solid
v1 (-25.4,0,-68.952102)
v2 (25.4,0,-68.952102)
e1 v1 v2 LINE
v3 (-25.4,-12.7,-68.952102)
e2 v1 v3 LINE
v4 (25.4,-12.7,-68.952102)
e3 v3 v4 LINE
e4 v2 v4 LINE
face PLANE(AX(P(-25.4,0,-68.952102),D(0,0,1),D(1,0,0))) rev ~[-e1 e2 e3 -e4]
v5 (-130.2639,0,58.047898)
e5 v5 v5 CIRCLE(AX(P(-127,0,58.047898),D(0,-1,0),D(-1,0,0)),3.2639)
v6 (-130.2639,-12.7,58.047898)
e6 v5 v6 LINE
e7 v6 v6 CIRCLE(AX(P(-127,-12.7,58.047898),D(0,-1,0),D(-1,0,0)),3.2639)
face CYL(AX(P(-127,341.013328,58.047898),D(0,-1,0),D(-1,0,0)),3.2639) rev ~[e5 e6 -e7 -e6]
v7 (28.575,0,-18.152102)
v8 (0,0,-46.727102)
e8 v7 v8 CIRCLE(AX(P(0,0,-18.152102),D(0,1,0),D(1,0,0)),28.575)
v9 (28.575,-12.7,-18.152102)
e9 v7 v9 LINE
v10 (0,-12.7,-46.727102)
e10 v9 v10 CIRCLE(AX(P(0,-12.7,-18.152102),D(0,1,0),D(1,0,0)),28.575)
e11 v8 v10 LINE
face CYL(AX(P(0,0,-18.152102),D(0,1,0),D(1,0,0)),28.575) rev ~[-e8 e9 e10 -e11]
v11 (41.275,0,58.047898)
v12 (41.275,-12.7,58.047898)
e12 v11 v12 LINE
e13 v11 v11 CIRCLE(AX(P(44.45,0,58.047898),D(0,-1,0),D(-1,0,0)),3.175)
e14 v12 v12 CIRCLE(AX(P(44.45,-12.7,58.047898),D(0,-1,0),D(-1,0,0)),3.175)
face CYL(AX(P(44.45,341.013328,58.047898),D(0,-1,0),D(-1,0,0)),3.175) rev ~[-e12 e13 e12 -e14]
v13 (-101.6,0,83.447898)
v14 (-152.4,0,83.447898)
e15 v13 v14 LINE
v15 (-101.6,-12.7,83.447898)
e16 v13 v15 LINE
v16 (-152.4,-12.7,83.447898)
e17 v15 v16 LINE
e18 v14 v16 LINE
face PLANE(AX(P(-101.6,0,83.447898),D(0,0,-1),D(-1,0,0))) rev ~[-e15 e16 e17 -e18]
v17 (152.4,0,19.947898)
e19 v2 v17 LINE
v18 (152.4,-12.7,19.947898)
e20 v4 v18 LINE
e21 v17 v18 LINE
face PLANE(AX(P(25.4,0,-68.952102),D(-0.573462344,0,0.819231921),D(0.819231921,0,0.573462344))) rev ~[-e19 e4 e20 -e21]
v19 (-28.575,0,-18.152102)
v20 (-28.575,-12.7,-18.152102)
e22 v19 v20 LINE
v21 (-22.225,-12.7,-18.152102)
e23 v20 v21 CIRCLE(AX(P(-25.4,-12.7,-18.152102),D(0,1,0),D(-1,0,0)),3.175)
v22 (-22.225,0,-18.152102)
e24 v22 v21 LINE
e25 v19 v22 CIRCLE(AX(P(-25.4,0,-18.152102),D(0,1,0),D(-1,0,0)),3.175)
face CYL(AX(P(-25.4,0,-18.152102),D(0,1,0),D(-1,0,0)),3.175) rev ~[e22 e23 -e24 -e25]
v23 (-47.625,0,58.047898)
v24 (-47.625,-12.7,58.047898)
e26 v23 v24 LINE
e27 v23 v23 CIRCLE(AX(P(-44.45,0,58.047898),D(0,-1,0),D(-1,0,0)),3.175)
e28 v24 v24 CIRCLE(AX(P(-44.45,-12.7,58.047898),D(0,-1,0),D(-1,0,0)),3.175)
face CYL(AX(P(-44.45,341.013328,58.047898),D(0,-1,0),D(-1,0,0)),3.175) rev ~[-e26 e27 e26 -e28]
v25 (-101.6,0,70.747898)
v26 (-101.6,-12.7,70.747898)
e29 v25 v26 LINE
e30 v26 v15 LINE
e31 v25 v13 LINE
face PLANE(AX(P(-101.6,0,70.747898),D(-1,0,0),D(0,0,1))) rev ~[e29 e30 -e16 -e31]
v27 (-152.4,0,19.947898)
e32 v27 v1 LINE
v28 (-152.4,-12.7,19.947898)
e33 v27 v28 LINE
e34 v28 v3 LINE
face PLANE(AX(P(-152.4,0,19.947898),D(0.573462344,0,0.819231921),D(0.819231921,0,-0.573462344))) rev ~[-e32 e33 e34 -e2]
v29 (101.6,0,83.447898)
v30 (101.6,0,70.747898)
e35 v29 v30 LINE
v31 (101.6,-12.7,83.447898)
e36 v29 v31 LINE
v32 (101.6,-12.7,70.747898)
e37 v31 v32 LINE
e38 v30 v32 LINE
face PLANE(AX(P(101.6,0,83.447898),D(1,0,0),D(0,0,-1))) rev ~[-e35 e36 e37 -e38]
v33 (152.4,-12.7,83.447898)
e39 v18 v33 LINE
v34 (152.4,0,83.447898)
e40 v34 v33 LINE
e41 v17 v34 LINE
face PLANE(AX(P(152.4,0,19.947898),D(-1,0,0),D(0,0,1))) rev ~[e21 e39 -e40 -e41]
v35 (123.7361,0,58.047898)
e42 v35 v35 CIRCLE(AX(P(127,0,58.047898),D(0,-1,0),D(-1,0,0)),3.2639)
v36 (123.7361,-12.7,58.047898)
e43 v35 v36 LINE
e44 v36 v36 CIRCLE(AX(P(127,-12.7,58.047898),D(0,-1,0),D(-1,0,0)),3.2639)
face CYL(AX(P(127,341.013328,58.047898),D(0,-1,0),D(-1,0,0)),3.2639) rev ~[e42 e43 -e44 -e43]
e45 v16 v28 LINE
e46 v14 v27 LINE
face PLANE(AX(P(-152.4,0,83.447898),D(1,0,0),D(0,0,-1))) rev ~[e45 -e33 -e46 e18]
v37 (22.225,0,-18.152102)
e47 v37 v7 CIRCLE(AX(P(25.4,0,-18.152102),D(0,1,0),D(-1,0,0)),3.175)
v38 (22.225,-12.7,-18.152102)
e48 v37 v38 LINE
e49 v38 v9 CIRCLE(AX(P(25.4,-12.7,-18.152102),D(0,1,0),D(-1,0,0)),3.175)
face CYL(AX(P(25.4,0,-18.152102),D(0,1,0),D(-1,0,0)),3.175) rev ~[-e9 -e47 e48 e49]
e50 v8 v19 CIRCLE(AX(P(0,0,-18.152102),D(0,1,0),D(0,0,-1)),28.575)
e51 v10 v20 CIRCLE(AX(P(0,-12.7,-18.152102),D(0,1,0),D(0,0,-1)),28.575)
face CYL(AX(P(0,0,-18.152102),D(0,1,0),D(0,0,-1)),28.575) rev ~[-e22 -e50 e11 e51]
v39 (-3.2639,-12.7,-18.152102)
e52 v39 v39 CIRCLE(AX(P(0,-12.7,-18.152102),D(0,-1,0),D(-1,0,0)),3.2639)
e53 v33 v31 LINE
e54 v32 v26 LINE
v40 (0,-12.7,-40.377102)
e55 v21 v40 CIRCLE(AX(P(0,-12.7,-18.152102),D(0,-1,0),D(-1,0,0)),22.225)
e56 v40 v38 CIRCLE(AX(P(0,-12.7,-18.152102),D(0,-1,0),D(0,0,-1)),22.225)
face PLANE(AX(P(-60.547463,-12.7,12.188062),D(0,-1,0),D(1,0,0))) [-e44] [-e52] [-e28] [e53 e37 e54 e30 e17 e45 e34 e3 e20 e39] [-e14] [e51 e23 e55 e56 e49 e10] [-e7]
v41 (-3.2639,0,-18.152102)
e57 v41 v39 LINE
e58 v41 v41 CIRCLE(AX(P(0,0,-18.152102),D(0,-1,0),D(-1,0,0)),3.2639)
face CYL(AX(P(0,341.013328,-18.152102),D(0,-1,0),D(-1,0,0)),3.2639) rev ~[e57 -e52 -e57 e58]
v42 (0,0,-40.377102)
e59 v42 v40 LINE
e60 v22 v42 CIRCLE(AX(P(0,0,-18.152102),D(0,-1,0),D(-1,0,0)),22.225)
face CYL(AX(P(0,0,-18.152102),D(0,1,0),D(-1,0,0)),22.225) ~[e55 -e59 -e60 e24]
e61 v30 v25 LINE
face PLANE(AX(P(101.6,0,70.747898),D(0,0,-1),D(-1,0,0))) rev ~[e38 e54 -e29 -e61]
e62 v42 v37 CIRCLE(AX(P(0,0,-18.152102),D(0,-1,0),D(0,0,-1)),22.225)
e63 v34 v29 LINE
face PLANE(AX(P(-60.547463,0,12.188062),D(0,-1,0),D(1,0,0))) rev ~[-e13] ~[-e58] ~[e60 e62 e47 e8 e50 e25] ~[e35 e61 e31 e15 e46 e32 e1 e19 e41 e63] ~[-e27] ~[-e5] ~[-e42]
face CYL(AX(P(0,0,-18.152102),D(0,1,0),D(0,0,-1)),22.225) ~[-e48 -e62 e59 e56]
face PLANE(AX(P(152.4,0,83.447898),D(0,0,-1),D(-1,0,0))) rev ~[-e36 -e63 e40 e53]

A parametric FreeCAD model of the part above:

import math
import FreeCAD as App
import Part
import Sketcher
Q = App.Units.Quantity


def add_polygon(sketch, points):
    """Adds a closed chain of lines whose ends are joined by coincident constraints."""
    first, n = sketch.GeometryCount, len(points)
    for a, b in zip(points, points[1:] + points[:1]):
        sketch.addGeometry(Part.LineSegment(App.Vector(*a, 0), App.Vector(*b, 0)), False)
    for i in range(n):
        sketch.addConstraint(Sketcher.Constraint("Coincident", first + i, 2, first + (i + 1) % n, 1))

doc = App.newDocument("Part")
body = doc.addObject("PartDesign::Body", "Body")

sketch1 = body.newObject("Sketcher::SketchObject", "Sketch")
sketch1.AttachmentSupport = (doc.getObject("XZ_Plane"), [""])
sketch1.MapMode = "FlatFace"
add_polygon(sketch1, [(-101.6, 70.7), (-101.6, 83.4), (-152.4, 83.4), (-152.4, 19.9), (-25.4, -69), (25.4, -69), (152.4, 19.9), (152.4, 83.4), (101.6, 83.4), (101.6, 70.7)])
sketch1.addGeometry(Part.ArcOfCircle(Part.Circle(App.Vector(0, -18.2, 0), App.Vector(0, 0, 1), 28.6), math.radians(180), math.radians(270)), False)
sketch1.addGeometry(Part.ArcOfCircle(Part.Circle(App.Vector(-25.4, -18.2, 0), App.Vector(0, 0, 1), 3.2), math.radians(0), math.radians(180)), False)
sketch1.addGeometry(Part.ArcOfCircle(Part.Circle(App.Vector(0, -18.2, 0), App.Vector(0, 0, 1), 22.2), math.radians(180), math.radians(270)), False)
sketch1.addGeometry(Part.ArcOfCircle(Part.Circle(App.Vector(0, -18.2, 0), App.Vector(0, 0, 1), 22.2), math.radians(-90), math.radians(0)), False)
sketch1.addGeometry(Part.ArcOfCircle(Part.Circle(App.Vector(25.4, -18.2, 0), App.Vector(0, 0, 1), 3.2), math.radians(0), math.radians(180)), False)
sketch1.addGeometry(Part.ArcOfCircle(Part.Circle(App.Vector(0, -18.2, 0), App.Vector(0, 0, 1), 28.6), math.radians(-90), math.radians(0)), False)
sketch1.addConstraint([
    Sketcher.Constraint("Tangent", 10, 1, 11, 2),
    Sketcher.Constraint("Tangent", 11, 1, 12, 1),
    Sketcher.Constraint("Tangent", 12, 2, 13, 1),
    Sketcher.Constraint("Tangent", 13, 2, 14, 2),
    Sketcher.Constraint("Tangent", 14, 1, 15, 2),
    Sketcher.Constraint("Tangent", 15, 1, 10, 2),
    Sketcher.Constraint("Vertical", 0),
    Sketcher.Constraint("Horizontal", 1),
    Sketcher.Constraint("Vertical", 2),
    Sketcher.Constraint("Horizontal", 4),
    Sketcher.Constraint("Vertical", 6),
    Sketcher.Constraint("Horizontal", 7),
    Sketcher.Constraint("Vertical", 8),
    Sketcher.Constraint("Horizontal", 9),
    Sketcher.Constraint("Coincident", 12, 3, 10, 3),
    Sketcher.Constraint("Equal", 12, 13),
    Sketcher.Constraint("Equal", 11, 14),
    Sketcher.Constraint("Symmetric", 11, 3, 14, 3, -2),
    Sketcher.Constraint("Symmetric", 2, 2, 5, 2, -2),
    Sketcher.Constraint("Symmetric", 0, 2, 7, 2, -2),
    Sketcher.Constraint("PointOnObject", 12, 2, -2),
    Sketcher.Constraint("PointOnObject", 15, 1, -2),
    Sketcher.Constraint("Horizontal", 10, 3, 11, 3),
    Sketcher.Constraint("Vertical", 11, 3, 3, 2),
    Sketcher.Constraint("Vertical", 14, 3, 4, 2),
    Sketcher.Constraint("Equal", 1, 4),
    Sketcher.Constraint("DistanceX", 1, 2, 1, 1, Q("2 in")),
    Sketcher.Constraint("DistanceX", 9, 2, 9, 1, Q("8 in")),
    Sketcher.Constraint("DistanceY", 0, 1, 0, 2, Q("0.5 in")),
    Sketcher.Constraint("DistanceY", 2, 2, 2, 1, Q("2.5 in")),
    Sketcher.Constraint("Radius", 10, Q("1.125 in")),
    Sketcher.Constraint("DistanceY", 11, 3, 0, 2, Q("4 in")),
    Sketcher.Constraint("DistanceY", 3, 2, 11, 3, Q("2 in")),
    Sketcher.Constraint("DistanceY", 10, 3, -1, 1, 18.152102),
])
pad1 = body.newObject("PartDesign::Pad", "Pad")
pad1.Profile = sketch1
pad1.Length = Q("0.5 in")

sketch2 = body.newObject("Sketcher::SketchObject", "Sketch001")
sketch2.AttachmentSupport = (doc.getObject("XZ_Plane"), [""])
sketch2.MapMode = "FlatFace"
sketch2.addGeometry([
    Part.Circle(App.Vector(44.5, 58, 0), App.Vector(0, 0, 1), 3.2),
    Part.Circle(App.Vector(-44.5, 58, 0), App.Vector(0, 0, 1), 3.2),
], False)
sketch2.addConstraint([
    Sketcher.Constraint("Equal", 0, 1),
    Sketcher.Constraint("Symmetric", 0, 3, 1, 3, -2),
    Sketcher.Constraint("Diameter", 0, Q("0.25 in")),
    Sketcher.Constraint("DistanceX", 1, 3, 0, 3, Q("3.5 in")),
    Sketcher.Constraint("DistanceY", -1, 1, 0, 3, 58.047898),
])
doc.recompute()
hole = body.newObject("PartDesign::Hole", "Hole")
hole.Profile = sketch2
hole.ThreadType = "None"
hole.Diameter = Q("0.25 in")
hole.DepthType = "ThroughAll"
hole.Reversed = True

sketch3 = body.newObject("Sketcher::SketchObject", "Sketch002")
sketch3.AttachmentSupport = (doc.getObject("XZ_Plane"), [""])
sketch3.MapMode = "FlatFace"
sketch3.addGeometry(Part.Circle(App.Vector(-127, 58, 0), App.Vector(0, 0, 1), 3.3), False)
sketch3.addConstraint([
    Sketcher.Constraint("Diameter", 0, Q("0.257 in")),
    Sketcher.Constraint("DistanceX", 0, 3, -1, 1, Q("5 in")),
    Sketcher.Constraint("DistanceY", -1, 1, 0, 3, 58.047898),
])
doc.recompute()
hole2 = body.newObject("PartDesign::Hole", "Hole001")
hole2.Profile = sketch3
hole2.ThreadType = "None"
hole2.Diameter = Q("0.257 in")
hole2.DepthType = "ThroughAll"
hole2.Reversed = True

sketch4 = body.newObject("Sketcher::SketchObject", "Sketch003")
sketch4.AttachmentSupport = (doc.getObject("XZ_Plane"), [""])
sketch4.MapMode = "FlatFace"
sketch4.addGeometry(Part.Circle(App.Vector(0, -18.2, 0), App.Vector(0, 0, 1), 3.3), False)
sketch4.addConstraint([
    Sketcher.Constraint("PointOnObject", 0, 3, -2),
    Sketcher.Constraint("Diameter", 0, Q("0.257 in")),
    Sketcher.Constraint("DistanceY", 0, 3, -1, 1, 18.152102),
])
doc.recompute()
hole3 = body.newObject("PartDesign::Hole", "Hole002")
hole3.Profile = sketch4
hole3.ThreadType = "None"
hole3.Diameter = Q("0.257 in")
hole3.DepthType = "ThroughAll"
hole3.Reversed = True

sketch5 = body.newObject("Sketcher::SketchObject", "Sketch004")
sketch5.AttachmentSupport = (doc.getObject("XZ_Plane"), [""])
sketch5.MapMode = "FlatFace"
sketch5.addGeometry(Part.Circle(App.Vector(127, 58, 0), App.Vector(0, 0, 1), 3.3), False)
sketch5.addConstraint([
    Sketcher.Constraint("Diameter", 0, Q("0.257 in")),
    Sketcher.Constraint("DistanceX", -1, 1, 0, 3, Q("5 in")),
    Sketcher.Constraint("DistanceY", -1, 1, 0, 3, 58.047898),
])
doc.recompute()
hole4 = body.newObject("PartDesign::Hole", "Hole003")
hole4.Profile = sketch5
hole4.ThreadType = "None"
hole4.Diameter = Q("0.257 in")
hole4.DepthType = "ThroughAll"
hole4.Reversed = True

doc.recompute()
